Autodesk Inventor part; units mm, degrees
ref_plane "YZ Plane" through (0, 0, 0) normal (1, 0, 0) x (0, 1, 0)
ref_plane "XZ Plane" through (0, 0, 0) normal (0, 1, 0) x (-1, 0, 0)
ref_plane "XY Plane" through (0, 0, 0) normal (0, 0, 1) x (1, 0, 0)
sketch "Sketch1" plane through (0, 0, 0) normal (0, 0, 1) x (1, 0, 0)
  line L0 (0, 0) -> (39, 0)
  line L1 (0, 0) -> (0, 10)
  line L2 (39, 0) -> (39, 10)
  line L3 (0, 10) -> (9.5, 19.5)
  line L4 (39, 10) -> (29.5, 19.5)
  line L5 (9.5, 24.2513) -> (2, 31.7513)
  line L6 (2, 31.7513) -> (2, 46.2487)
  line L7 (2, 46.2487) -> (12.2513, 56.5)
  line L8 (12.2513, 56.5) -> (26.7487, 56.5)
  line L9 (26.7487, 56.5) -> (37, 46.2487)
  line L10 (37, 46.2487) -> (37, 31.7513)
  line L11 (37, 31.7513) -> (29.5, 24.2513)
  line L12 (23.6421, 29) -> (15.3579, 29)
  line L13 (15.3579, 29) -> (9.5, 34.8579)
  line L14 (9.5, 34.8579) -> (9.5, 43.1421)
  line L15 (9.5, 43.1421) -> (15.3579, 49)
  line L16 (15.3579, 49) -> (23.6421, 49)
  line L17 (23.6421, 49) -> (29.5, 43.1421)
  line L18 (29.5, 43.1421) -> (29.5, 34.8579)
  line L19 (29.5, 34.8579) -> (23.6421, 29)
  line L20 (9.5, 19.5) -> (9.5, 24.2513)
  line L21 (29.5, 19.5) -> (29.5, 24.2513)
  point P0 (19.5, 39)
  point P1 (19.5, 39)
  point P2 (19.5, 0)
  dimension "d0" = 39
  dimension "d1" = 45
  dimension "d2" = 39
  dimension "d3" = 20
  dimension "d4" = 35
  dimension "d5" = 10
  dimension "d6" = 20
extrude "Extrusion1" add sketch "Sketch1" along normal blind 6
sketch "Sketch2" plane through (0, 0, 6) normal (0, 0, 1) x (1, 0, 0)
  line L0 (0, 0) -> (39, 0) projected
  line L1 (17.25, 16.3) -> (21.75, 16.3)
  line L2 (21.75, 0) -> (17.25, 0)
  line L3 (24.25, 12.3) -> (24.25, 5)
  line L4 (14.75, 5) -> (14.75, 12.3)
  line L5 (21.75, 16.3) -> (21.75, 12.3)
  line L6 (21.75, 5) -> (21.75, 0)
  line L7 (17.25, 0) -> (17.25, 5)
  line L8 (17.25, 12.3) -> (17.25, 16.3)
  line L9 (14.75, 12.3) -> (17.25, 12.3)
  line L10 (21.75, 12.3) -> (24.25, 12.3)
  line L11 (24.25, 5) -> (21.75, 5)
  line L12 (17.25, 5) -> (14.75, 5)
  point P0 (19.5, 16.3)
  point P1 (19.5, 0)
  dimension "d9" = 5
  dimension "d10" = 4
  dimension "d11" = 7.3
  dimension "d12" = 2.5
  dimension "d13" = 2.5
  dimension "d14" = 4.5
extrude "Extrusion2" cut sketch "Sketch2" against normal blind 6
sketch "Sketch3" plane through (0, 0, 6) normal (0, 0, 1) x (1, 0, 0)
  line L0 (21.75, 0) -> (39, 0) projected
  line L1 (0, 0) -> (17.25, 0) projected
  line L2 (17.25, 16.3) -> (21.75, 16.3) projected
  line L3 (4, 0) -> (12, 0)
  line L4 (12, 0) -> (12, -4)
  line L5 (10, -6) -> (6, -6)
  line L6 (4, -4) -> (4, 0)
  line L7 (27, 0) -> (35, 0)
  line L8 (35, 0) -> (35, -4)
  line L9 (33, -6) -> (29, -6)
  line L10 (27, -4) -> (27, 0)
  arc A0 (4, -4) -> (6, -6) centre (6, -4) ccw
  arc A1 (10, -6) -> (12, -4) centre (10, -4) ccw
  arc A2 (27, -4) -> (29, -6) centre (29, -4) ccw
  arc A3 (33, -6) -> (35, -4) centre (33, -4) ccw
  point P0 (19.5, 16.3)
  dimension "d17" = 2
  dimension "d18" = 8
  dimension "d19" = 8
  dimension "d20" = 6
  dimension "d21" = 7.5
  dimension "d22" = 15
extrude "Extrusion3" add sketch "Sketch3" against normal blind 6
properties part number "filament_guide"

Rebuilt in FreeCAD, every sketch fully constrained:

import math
import FreeCAD as App
import Part
import Sketcher

V = App.Vector
Q = App.Units.Quantity

doc = App.newDocument("Part")
body = doc.addObject("PartDesign::Body", "Body")

sketch1 = body.newObject("Sketcher::SketchObject", "Sketch")
sketch1.AttachmentSupport = (doc.getObject("XY_Plane"), [""])
sketch1.MapMode = "FlatFace"
sketch1.addGeometry([
    Part.LineSegment(V(0, 10, 0), V(0, 0, 0)),
    Part.LineSegment(V(0, 0, 0), V(39, 0, 0)),
    Part.LineSegment(V(39, 0, 0), V(39, 10, 0)),
    Part.LineSegment(V(39, 10, 0), V(29.5, 19.5, 0)),
    Part.LineSegment(V(29.5, 19.5, 0), V(29.5, 24.3, 0)),
    Part.LineSegment(V(29.5, 24.3, 0), V(37, 31.8, 0)),
    Part.LineSegment(V(37, 31.8, 0), V(37, 46.2, 0)),
    Part.LineSegment(V(37, 46.2, 0), V(26.7, 56.5, 0)),
    Part.LineSegment(V(26.7, 56.5, 0), V(12.3, 56.5, 0)),
    Part.LineSegment(V(12.3, 56.5, 0), V(2, 46.2, 0)),
    Part.LineSegment(V(2, 46.2, 0), V(2, 31.8, 0)),
    Part.LineSegment(V(2, 31.8, 0), V(9.5, 24.3, 0)),
    Part.LineSegment(V(9.5, 24.3, 0), V(9.5, 19.5, 0)),
    Part.LineSegment(V(9.5, 19.5, 0), V(0, 10, 0)),
    Part.LineSegment(V(29.5, 34.9, 0), V(23.6, 29, 0)),
    Part.LineSegment(V(23.6, 29, 0), V(15.4, 29, 0)),
    Part.LineSegment(V(15.4, 29, 0), V(9.5, 34.9, 0)),
    Part.LineSegment(V(9.5, 34.9, 0), V(9.5, 43.1, 0)),
    Part.LineSegment(V(9.5, 43.1, 0), V(15.4, 49, 0)),
    Part.LineSegment(V(15.4, 49, 0), V(23.6, 49, 0)),
    Part.LineSegment(V(23.6, 49, 0), V(29.5, 43.1, 0)),
    Part.LineSegment(V(29.5, 43.1, 0), V(29.5, 34.9, 0)),
], False)
sketch1.addConstraint([
    Sketcher.Constraint("Coincident", 0, 2, 1, 1),
    Sketcher.Constraint("Coincident", 1, 2, 2, 1),
    Sketcher.Constraint("Coincident", 2, 2, 3, 1),
    Sketcher.Constraint("Coincident", 3, 2, 4, 1),
    Sketcher.Constraint("Coincident", 4, 2, 5, 1),
    Sketcher.Constraint("Coincident", 5, 2, 6, 1),
    Sketcher.Constraint("Coincident", 6, 2, 7, 1),
    Sketcher.Constraint("Coincident", 7, 2, 8, 1),
    Sketcher.Constraint("Coincident", 8, 2, 9, 1),
    Sketcher.Constraint("Coincident", 9, 2, 10, 1),
    Sketcher.Constraint("Coincident", 10, 2, 11, 1),
    Sketcher.Constraint("Coincident", 11, 2, 12, 1),
    Sketcher.Constraint("Coincident", 12, 2, 13, 1),
    Sketcher.Constraint("Coincident", 13, 2, 0, 1),
    Sketcher.Constraint("Coincident", 14, 2, 15, 1),
    Sketcher.Constraint("Coincident", 15, 2, 16, 1),
    Sketcher.Constraint("Coincident", 16, 2, 17, 1),
    Sketcher.Constraint("Coincident", 17, 2, 18, 1),
    Sketcher.Constraint("Coincident", 18, 2, 19, 1),
    Sketcher.Constraint("Coincident", 19, 2, 20, 1),
    Sketcher.Constraint("Coincident", 20, 2, 21, 1),
    Sketcher.Constraint("Coincident", 21, 2, 14, 1),
    Sketcher.Constraint("Vertical", 0),
    Sketcher.Constraint("Horizontal", 1),
    Sketcher.Constraint("Vertical", 2),
    Sketcher.Constraint("Vertical", 4),
    Sketcher.Constraint("Vertical", 6),
    Sketcher.Constraint("Horizontal", 8),
    Sketcher.Constraint("Vertical", 10),
    Sketcher.Constraint("Vertical", 12),
    Sketcher.Constraint("Horizontal", 15),
    Sketcher.Constraint("Vertical", 17),
    Sketcher.Constraint("Horizontal", 19),
    Sketcher.Constraint("Vertical", 21),
    Sketcher.Constraint("Coincident", 0, 2, -1, 1),
    Sketcher.Constraint("Perpendicular", 3, 5),
    Sketcher.Constraint("Perpendicular", 5, 7),
    Sketcher.Constraint("Perpendicular", 7, 9),
    Sketcher.Constraint("Perpendicular", 9, 11),
    Sketcher.Constraint("Perpendicular", 11, 13),
    Sketcher.Constraint("Parallel", 13, 14),
    Sketcher.Constraint("Perpendicular", 14, 16),
    Sketcher.Constraint("Perpendicular", 16, 18),
    Sketcher.Constraint("Perpendicular", 18, 20),
    Sketcher.Constraint("Horizontal", 6, 2, 9, 2),
    Sketcher.Constraint("Horizontal", 5, 2, 10, 2),
    Sketcher.Constraint("Horizontal", 4, 2, 11, 2),
    Sketcher.Constraint("Horizontal", 3, 2, 12, 2),
    Sketcher.Constraint("Horizontal", 2, 2, 13, 2),
    Sketcher.Constraint("Horizontal", 17, 2, 20, 2),
    Sketcher.Constraint("Horizontal", 16, 2, 21, 2),
    Sketcher.Constraint("Vertical", 12, 2, 16, 2),
    Sketcher.Constraint("Vertical", 15, 2, 18, 2),
    Sketcher.Constraint("Vertical", 14, 2, 19, 2),
    Sketcher.Constraint("Vertical", 4, 2, 20, 2),
    Sketcher.Constraint("Equal", 8, 6),
    Sketcher.Constraint("Equal", 19, 17),
    Sketcher.Constraint("DistanceX", 1, 1, 1, 2, Q("39 mm")),
    Sketcher.Constraint("DistanceY", 0, 2, 0, 1, Q("10 mm")),
    Sketcher.Constraint("DistanceX", 9, 2, 6, 2, Q("35 mm")),
    Sketcher.Constraint("DistanceX", 11, 2, 4, 2, Q("20 mm")),
    Sketcher.Constraint("DistanceY", -1, 1, 14, 2, Q("29 mm")),
    Sketcher.Constraint("DistanceY", 3, 2, 7, 2, Q("37 mm")),
    Sketcher.Constraint("DistanceX", 8, 2, 8, 1, Q("14.4974 mm")),
    Sketcher.Constraint("DistanceX", 15, 2, 15, 1, Q("8.2842 mm")),
])
pad1 = body.newObject("PartDesign::Pad", "Pad")
pad1.Profile = sketch1
pad1.Length = 6

sketch2 = body.newObject("Sketcher::SketchObject", "Sketch001")
sketch2.AttachmentSupport = (doc.getObject("XY_Plane"), [""])
sketch2.MapMode = "FlatFace"
sketch2.AttachmentOffset = App.Placement(V(0, 0, 6), App.Rotation())
sketch2.addGeometry([
    Part.LineSegment(V(17.2, 5, 0), V(17.2, 0, 0)),
    Part.LineSegment(V(17.2, 0, 0), V(21.8, 0, 0)),
    Part.LineSegment(V(21.8, 0, 0), V(21.8, 5, 0)),
    Part.LineSegment(V(21.8, 5, 0), V(24.2, 5, 0)),
    Part.LineSegment(V(24.2, 5, 0), V(24.2, 12.3, 0)),
    Part.LineSegment(V(24.2, 12.3, 0), V(21.8, 12.3, 0)),
    Part.LineSegment(V(21.8, 12.3, 0), V(21.8, 16.3, 0)),
    Part.LineSegment(V(21.8, 16.3, 0), V(17.2, 16.3, 0)),
    Part.LineSegment(V(17.2, 16.3, 0), V(17.2, 12.3, 0)),
    Part.LineSegment(V(17.2, 12.3, 0), V(14.8, 12.3, 0)),
    Part.LineSegment(V(14.8, 12.3, 0), V(14.8, 5, 0)),
    Part.LineSegment(V(14.8, 5, 0), V(17.2, 5, 0)),
], False)
sketch2.addConstraint([
    Sketcher.Constraint("Coincident", 0, 2, 1, 1),
    Sketcher.Constraint("Coincident", 1, 2, 2, 1),
    Sketcher.Constraint("Coincident", 2, 2, 3, 1),
    Sketcher.Constraint("Coincident", 3, 2, 4, 1),
    Sketcher.Constraint("Coincident", 4, 2, 5, 1),
    Sketcher.Constraint("Coincident", 5, 2, 6, 1),
    Sketcher.Constraint("Coincident", 6, 2, 7, 1),
    Sketcher.Constraint("Coincident", 7, 2, 8, 1),
    Sketcher.Constraint("Coincident", 8, 2, 9, 1),
    Sketcher.Constraint("Coincident", 9, 2, 10, 1),
    Sketcher.Constraint("Coincident", 10, 2, 11, 1),
    Sketcher.Constraint("Coincident", 11, 2, 0, 1),
    Sketcher.Constraint("Vertical", 0),
    Sketcher.Constraint("Horizontal", 1),
    Sketcher.Constraint("Vertical", 2),
    Sketcher.Constraint("Horizontal", 3),
    Sketcher.Constraint("Vertical", 4),
    Sketcher.Constraint("Horizontal", 5),
    Sketcher.Constraint("Vertical", 6),
    Sketcher.Constraint("Horizontal", 7),
    Sketcher.Constraint("Vertical", 8),
    Sketcher.Constraint("Horizontal", 9),
    Sketcher.Constraint("Vertical", 10),
    Sketcher.Constraint("Horizontal", 11),
    Sketcher.Constraint("PointOnObject", 0, 2, -1),
    Sketcher.Constraint("Horizontal", 5, 2, 8, 2),
    Sketcher.Constraint("Horizontal", 3, 2, 10, 2),
    Sketcher.Constraint("Vertical", 2, 2, 5, 2),
    Sketcher.Constraint("Vertical", 0, 2, 7, 2),
    Sketcher.Constraint("Equal", 5, 9),
    Sketcher.Constraint("DistanceY", 0, 2, 0, 1, Q("5 mm")),
    Sketcher.Constraint("DistanceY", 6, 1, 6, 2, Q("4 mm")),
    Sketcher.Constraint("DistanceX", 1, 1, 1, 2, Q("4.5 mm")),
    Sketcher.Constraint("DistanceX", 3, 1, 3, 2, Q("2.5 mm")),
    Sketcher.Constraint("DistanceY", 4, 1, 4, 2, Q("7.3 mm")),
    Sketcher.Constraint("DistanceX", -1, 1, 0, 2, Q("17.25 mm")),
])
pocket1 = body.newObject("PartDesign::Pocket", "Pocket")
pocket1.Profile = sketch2
pocket1.Length = 6

sketch3 = body.newObject("Sketcher::SketchObject", "Sketch002")
sketch3.AttachmentSupport = (doc.getObject("XY_Plane"), [""])
sketch3.MapMode = "FlatFace"
sketch3.AttachmentOffset = App.Placement(V(0, 0, 6), App.Rotation())
sketch3.addGeometry([
    Part.LineSegment(V(35, 0, 0), V(27, 0, 0)),
    Part.LineSegment(V(27, 0, 0), V(27, -4, 0)),
    Part.ArcOfCircle(Part.Circle(V(29, -4, 0), V(0, 0, 1), 2), math.radians(180), math.radians(270)),
    Part.LineSegment(V(29, -6, 0), V(33, -6, 0)),
    Part.ArcOfCircle(Part.Circle(V(33, -4, 0), V(0, 0, 1), 2), math.radians(-90), math.radians(0)),
    Part.LineSegment(V(35, -4, 0), V(35, 0, 0)),
    Part.LineSegment(V(12, 0, 0), V(4, 0, 0)),
    Part.LineSegment(V(4, 0, 0), V(4, -4, 0)),
    Part.ArcOfCircle(Part.Circle(V(6, -4, 0), V(0, 0, 1), 2), math.radians(180), math.radians(270)),
    Part.LineSegment(V(6, -6, 0), V(10, -6, 0)),
    Part.ArcOfCircle(Part.Circle(V(10, -4, 0), V(0, 0, 1), 2), math.radians(-90), math.radians(0)),
    Part.LineSegment(V(12, -4, 0), V(12, 0, 0)),
], False)
sketch3.addConstraint([
    Sketcher.Constraint("Coincident", 0, 2, 1, 1),
    Sketcher.Constraint("Tangent", 1, 2, 2, 1),
    Sketcher.Constraint("Tangent", 2, 2, 3, 1),
    Sketcher.Constraint("Tangent", 3, 2, 4, 1),
    Sketcher.Constraint("Tangent", 4, 2, 5, 1),
    Sketcher.Constraint("Coincident", 5, 2, 0, 1),
    Sketcher.Constraint("Coincident", 6, 2, 7, 1),
    Sketcher.Constraint("Tangent", 7, 2, 8, 1),
    Sketcher.Constraint("Tangent", 8, 2, 9, 1),
    Sketcher.Constraint("Tangent", 9, 2, 10, 1),
    Sketcher.Constraint("Tangent", 10, 2, 11, 1),
    Sketcher.Constraint("Coincident", 11, 2, 6, 1),
    Sketcher.Constraint("Horizontal", 0),
    Sketcher.Constraint("Vertical", 1),
    Sketcher.Constraint("Horizontal", 3),
    Sketcher.Constraint("Vertical", 5),
    Sketcher.Constraint("Horizontal", 6),
    Sketcher.Constraint("Vertical", 7),
    Sketcher.Constraint("Horizontal", 9),
    Sketcher.Constraint("Vertical", 11),
    Sketcher.Constraint("Equal", 2, 4),
    Sketcher.Constraint("Equal", 4, 8),
    Sketcher.Constraint("Equal", 8, 10),
    Sketcher.Constraint("PointOnObject", 0, 2, -1),
    Sketcher.Constraint("PointOnObject", 6, 2, -1),
    Sketcher.Constraint("Horizontal", 4, 3, 8, 3),
    Sketcher.Constraint("Equal", 0, 6),
    Sketcher.Constraint("Equal", 9, 1),
    Sketcher.Constraint("Radius", 2, Q("2 mm")),
    Sketcher.Constraint("DistanceX", 0, 2, 0, 1, Q("8 mm")),
    Sketcher.Constraint("DistanceX", -1, 1, 8, 3, Q("6 mm")),
    Sketcher.Constraint("DistanceX", -1, 1, 2, 3, Q("29 mm")),
])
pad2 = body.newObject("PartDesign::Pad", "Pad001")
pad2.Profile = sketch3
pad2.Length = 6
pad2.Reversed = True

doc.recompute()
